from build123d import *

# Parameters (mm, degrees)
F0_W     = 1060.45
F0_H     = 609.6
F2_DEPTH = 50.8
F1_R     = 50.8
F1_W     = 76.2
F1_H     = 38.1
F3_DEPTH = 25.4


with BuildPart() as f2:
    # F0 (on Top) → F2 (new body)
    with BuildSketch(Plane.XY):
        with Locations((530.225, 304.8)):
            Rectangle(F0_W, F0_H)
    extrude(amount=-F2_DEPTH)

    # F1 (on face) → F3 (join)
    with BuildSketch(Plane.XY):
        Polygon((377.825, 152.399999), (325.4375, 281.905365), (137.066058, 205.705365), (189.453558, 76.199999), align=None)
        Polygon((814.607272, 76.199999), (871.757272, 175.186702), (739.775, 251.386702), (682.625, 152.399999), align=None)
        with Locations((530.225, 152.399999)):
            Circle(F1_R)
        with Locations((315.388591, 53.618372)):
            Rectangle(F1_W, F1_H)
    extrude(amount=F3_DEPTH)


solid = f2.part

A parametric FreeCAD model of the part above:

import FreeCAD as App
import Part
import Sketcher
Q = App.Units.Quantity


def add_polygon(sketch, points):
    """Adds a closed chain of lines whose ends are joined by coincident constraints."""
    first, n = sketch.GeometryCount, len(points)
    for a, b in zip(points, points[1:] + points[:1]):
        sketch.addGeometry(Part.LineSegment(App.Vector(*a, 0), App.Vector(*b, 0)), False)
    for i in range(n):
        sketch.addConstraint(Sketcher.Constraint("Coincident", first + i, 2, first + (i + 1) % n, 1))

doc = App.newDocument("Part")
body = doc.addObject("PartDesign::Body", "Body")

sketch1 = body.newObject("Sketcher::SketchObject", "Sketch")
sketch1.AttachmentSupport = (doc.getObject("XY_Plane"), [""])
sketch1.MapMode = "FlatFace"
add_polygon(sketch1, [(0, 610), (0, 0), (1060, 0), (1060, 610)])
sketch1.addConstraint([
    Sketcher.Constraint("Vertical", 0),
    Sketcher.Constraint("Horizontal", 1),
    Sketcher.Constraint("Vertical", 2),
    Sketcher.Constraint("Horizontal", 3),
    Sketcher.Constraint("Coincident", 0, 2, -1, 1),
    Sketcher.Constraint("DistanceY", 0, 2, 0, 1, Q("24 in")),
    Sketcher.Constraint("DistanceX", 1, 1, 1, 2, Q("41.75 in")),
])
pad1 = body.newObject("PartDesign::Pad", "Pad")
pad1.Profile = sketch1
pad1.Length = Q("2 in")
pad1.Reversed = True

sketch2 = body.newObject("Sketcher::SketchObject", "Sketch001")
sketch2.AttachmentSupport = (doc.getObject("XY_Plane"), [""])
sketch2.MapMode = "FlatFace"
add_polygon(sketch2, [(378, 152), (325, 282), (137, 206), (189, 76)])
add_polygon(sketch2, [(815, 76), (872, 175), (740, 251), (683, 152)])
sketch2.addGeometry(Part.Circle(App.Vector(530, 152, 0), App.Vector(0, 0, 1), 51), False)
add_polygon(sketch2, [(277, 73), (277, 35), (353, 35), (353, 73)])
sketch2.addConstraint([
    Sketcher.Constraint("Vertical", 9),
    Sketcher.Constraint("Horizontal", 10),
    Sketcher.Constraint("Vertical", 11),
    Sketcher.Constraint("Horizontal", 12),
    Sketcher.Constraint("Perpendicular", 0, 1),
    Sketcher.Constraint("Perpendicular", 1, 2),
    Sketcher.Constraint("Perpendicular", 2, 3),
    Sketcher.Constraint("Perpendicular", 4, 5),
    Sketcher.Constraint("Perpendicular", 5, 6),
    Sketcher.Constraint("Perpendicular", 6, 7),
    Sketcher.Constraint("Horizontal", 8, 3, 3, 2),
    Sketcher.Constraint("Horizontal", 3, 2, 6, 2),
    Sketcher.Constraint("Horizontal", 2, 2, 7, 2),
    Sketcher.Constraint("Diameter", 8, Q("4 in")),
    Sketcher.Constraint("DistanceX", 10, 1, 10, 2, Q("3 in")),
    Sketcher.Constraint("Distance", 1, Q("8 in")),
    Sketcher.Constraint("Distance", 5, Q("6 in")),
    Sketcher.Constraint("DistanceY", 9, 2, 9, 1, Q("1.5 in")),
    Sketcher.Constraint("DistanceY", -1, 1, 8, 3, Q("6 in")),
    Sketcher.Constraint("DistanceY", -1, 1, 2, 2, Q("3 in")),
    Sketcher.Constraint("DistanceX", 3, 2, 8, 3, Q("6 in")),
    Sketcher.Constraint("DistanceX", 8, 3, 6, 2, Q("6 in")),
    Sketcher.Constraint("Distance", 0, Q("5.5 in")),
    Sketcher.Constraint("Distance", 4, Q("4.5 in")),
    Sketcher.Constraint("DistanceX", -1, 1, 8, 3, Q("20.875 in")),
    Sketcher.Constraint("DistanceX", -1, 1, 9, 2, Q("277.288591 mm")),
    Sketcher.Constraint("DistanceY", -1, 1, 9, 2, Q("34.568372 mm")),
])
pad2 = body.newObject("PartDesign::Pad", "Pad001")
pad2.Profile = sketch2
pad2.Length = Q("1 in")

doc.recompute()
